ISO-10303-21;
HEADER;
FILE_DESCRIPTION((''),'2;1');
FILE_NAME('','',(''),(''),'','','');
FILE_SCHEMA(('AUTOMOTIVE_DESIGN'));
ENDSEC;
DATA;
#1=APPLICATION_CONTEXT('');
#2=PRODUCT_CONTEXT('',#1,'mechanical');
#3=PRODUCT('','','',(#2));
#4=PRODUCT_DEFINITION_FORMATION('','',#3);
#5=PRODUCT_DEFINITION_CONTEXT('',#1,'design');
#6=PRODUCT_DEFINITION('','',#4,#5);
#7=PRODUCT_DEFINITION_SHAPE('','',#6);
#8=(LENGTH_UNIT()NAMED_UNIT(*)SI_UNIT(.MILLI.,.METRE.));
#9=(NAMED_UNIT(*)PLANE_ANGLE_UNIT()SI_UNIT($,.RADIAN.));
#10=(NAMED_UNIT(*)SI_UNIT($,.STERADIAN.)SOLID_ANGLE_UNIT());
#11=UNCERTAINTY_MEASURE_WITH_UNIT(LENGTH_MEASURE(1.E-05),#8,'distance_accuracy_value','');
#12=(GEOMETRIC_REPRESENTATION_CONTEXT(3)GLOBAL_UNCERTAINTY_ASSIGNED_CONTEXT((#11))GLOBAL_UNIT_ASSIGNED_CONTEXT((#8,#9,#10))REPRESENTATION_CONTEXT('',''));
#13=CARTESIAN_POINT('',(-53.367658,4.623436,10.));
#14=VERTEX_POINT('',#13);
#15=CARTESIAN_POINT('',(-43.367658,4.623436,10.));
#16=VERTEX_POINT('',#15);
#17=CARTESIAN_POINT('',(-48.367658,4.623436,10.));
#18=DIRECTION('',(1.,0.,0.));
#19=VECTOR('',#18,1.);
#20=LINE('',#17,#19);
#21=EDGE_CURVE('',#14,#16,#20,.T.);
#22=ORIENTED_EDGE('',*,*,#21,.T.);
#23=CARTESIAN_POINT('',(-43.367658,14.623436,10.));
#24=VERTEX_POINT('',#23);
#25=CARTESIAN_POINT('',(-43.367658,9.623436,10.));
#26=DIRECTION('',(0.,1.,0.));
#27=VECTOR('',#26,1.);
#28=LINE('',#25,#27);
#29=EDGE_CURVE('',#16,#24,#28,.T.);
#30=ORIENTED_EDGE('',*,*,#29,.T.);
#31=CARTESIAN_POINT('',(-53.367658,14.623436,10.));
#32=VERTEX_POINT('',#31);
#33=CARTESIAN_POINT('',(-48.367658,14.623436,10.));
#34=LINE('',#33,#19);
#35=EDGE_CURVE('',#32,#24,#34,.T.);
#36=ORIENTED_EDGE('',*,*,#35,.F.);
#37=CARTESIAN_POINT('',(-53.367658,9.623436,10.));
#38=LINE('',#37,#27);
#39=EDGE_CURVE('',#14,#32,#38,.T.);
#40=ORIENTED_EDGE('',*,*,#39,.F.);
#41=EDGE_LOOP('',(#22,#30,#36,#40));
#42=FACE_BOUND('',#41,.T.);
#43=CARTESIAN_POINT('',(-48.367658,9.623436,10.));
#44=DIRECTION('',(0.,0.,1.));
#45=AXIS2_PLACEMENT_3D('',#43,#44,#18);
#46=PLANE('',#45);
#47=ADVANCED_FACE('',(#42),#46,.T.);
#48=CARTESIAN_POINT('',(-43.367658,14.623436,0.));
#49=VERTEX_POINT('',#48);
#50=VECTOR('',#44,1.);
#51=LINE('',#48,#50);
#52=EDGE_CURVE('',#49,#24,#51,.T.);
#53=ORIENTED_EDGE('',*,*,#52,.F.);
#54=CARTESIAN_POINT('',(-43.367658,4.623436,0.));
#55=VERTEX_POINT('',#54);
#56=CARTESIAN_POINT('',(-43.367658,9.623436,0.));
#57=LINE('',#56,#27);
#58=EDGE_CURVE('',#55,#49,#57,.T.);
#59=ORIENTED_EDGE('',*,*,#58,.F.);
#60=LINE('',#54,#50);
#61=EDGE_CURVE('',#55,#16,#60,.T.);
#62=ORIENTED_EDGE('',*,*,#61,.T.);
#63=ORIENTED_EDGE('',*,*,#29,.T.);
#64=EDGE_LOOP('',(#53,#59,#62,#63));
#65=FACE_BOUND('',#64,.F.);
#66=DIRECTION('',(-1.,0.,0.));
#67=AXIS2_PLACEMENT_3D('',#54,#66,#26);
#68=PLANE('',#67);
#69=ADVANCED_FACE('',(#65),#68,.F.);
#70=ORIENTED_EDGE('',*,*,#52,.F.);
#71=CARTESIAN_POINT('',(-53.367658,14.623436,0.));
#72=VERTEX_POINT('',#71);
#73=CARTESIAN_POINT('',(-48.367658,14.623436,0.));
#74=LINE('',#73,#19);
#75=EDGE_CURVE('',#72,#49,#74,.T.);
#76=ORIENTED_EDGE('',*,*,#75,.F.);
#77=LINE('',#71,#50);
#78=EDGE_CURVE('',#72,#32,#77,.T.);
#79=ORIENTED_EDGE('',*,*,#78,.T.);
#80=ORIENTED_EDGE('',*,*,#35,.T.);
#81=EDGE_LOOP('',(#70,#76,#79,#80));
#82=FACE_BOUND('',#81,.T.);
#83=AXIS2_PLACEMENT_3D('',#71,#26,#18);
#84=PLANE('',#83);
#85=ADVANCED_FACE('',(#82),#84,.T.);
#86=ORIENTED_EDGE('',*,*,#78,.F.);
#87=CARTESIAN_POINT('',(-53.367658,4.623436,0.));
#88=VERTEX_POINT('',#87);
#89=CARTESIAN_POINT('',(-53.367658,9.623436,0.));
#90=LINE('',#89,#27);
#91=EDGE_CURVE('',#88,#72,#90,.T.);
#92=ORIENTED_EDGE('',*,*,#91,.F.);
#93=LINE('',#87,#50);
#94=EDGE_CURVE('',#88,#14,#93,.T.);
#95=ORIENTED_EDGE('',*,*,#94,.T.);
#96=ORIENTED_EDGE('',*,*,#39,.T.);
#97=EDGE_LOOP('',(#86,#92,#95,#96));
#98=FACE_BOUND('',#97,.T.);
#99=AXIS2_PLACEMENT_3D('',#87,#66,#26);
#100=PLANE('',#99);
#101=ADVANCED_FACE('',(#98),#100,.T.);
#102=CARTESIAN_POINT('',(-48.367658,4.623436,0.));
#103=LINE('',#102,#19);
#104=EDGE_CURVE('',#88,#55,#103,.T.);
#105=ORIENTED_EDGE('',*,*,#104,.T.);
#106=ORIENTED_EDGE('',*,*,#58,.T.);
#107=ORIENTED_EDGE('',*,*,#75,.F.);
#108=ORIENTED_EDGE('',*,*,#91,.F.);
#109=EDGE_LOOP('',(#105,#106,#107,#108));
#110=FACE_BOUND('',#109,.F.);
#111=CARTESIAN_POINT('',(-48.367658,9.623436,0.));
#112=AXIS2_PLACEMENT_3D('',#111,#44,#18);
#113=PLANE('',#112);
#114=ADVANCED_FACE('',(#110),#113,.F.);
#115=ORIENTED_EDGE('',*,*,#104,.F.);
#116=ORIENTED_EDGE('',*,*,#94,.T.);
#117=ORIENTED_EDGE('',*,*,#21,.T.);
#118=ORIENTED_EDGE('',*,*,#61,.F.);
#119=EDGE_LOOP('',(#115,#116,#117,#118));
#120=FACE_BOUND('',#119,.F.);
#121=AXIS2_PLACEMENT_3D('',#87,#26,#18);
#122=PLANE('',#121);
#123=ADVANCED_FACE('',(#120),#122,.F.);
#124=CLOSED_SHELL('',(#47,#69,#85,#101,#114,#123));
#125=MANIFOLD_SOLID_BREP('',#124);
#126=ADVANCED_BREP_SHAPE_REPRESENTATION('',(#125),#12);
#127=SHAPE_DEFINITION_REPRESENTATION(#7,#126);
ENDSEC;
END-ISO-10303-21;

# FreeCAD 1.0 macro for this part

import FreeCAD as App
import Part
import Sketcher
from FreeCAD import Vector
Q = App.Units.Quantity


def add_polygon(sketch, points):
    """Adds a closed chain of lines whose ends are joined by coincident constraints."""
    first, n = sketch.GeometryCount, len(points)
    for a, b in zip(points, points[1:] + points[:1]):
        sketch.addGeometry(Part.LineSegment(App.Vector(*a, 0), App.Vector(*b, 0)), False)
    for i in range(n):
        sketch.addConstraint(Sketcher.Constraint("Coincident", first + i, 2, first + (i + 1) % n, 1))

doc = App.newDocument("Part")
body = doc.addObject("PartDesign::Body", "Body")

# Sketch on XY plane
sketch1 = doc.addObject("Sketcher::SketchObject", "Sketch")
body.addObject(sketch1)
sketch1.AttachmentSupport = (doc.XY_Plane, [""])
sketch1.MapMode = "FlatFace"
add_polygon(sketch1, [(-53, 15), (-53, 5), (-43, 5), (-43, 15)])  # lines 0-3
sketch1.addConstraint(Sketcher.Constraint("Vertical", 0))
sketch1.addConstraint(Sketcher.Constraint("Horizontal", 1))
sketch1.addConstraint(Sketcher.Constraint("Vertical", 2))
sketch1.addConstraint(Sketcher.Constraint("Horizontal", 3))
sketch1.addConstraint(Sketcher.Constraint("Equal", 3, 0))
sketch1.addConstraint(Sketcher.Constraint("DistanceX", 1, 1, 1, 2, Q("10 mm")))
sketch1.addConstraint(Sketcher.Constraint("DistanceX", 0, 2, -1, 1, Q("53.367658 mm")))
sketch1.addConstraint(Sketcher.Constraint("DistanceY", -1, 1, 0, 2, Q("4.623436 mm")))
pad1 = doc.addObject("PartDesign::Pad", "Pad")
body.addObject(pad1)
pad1.Profile = sketch1
pad1.Length = 10

doc.recompute()
